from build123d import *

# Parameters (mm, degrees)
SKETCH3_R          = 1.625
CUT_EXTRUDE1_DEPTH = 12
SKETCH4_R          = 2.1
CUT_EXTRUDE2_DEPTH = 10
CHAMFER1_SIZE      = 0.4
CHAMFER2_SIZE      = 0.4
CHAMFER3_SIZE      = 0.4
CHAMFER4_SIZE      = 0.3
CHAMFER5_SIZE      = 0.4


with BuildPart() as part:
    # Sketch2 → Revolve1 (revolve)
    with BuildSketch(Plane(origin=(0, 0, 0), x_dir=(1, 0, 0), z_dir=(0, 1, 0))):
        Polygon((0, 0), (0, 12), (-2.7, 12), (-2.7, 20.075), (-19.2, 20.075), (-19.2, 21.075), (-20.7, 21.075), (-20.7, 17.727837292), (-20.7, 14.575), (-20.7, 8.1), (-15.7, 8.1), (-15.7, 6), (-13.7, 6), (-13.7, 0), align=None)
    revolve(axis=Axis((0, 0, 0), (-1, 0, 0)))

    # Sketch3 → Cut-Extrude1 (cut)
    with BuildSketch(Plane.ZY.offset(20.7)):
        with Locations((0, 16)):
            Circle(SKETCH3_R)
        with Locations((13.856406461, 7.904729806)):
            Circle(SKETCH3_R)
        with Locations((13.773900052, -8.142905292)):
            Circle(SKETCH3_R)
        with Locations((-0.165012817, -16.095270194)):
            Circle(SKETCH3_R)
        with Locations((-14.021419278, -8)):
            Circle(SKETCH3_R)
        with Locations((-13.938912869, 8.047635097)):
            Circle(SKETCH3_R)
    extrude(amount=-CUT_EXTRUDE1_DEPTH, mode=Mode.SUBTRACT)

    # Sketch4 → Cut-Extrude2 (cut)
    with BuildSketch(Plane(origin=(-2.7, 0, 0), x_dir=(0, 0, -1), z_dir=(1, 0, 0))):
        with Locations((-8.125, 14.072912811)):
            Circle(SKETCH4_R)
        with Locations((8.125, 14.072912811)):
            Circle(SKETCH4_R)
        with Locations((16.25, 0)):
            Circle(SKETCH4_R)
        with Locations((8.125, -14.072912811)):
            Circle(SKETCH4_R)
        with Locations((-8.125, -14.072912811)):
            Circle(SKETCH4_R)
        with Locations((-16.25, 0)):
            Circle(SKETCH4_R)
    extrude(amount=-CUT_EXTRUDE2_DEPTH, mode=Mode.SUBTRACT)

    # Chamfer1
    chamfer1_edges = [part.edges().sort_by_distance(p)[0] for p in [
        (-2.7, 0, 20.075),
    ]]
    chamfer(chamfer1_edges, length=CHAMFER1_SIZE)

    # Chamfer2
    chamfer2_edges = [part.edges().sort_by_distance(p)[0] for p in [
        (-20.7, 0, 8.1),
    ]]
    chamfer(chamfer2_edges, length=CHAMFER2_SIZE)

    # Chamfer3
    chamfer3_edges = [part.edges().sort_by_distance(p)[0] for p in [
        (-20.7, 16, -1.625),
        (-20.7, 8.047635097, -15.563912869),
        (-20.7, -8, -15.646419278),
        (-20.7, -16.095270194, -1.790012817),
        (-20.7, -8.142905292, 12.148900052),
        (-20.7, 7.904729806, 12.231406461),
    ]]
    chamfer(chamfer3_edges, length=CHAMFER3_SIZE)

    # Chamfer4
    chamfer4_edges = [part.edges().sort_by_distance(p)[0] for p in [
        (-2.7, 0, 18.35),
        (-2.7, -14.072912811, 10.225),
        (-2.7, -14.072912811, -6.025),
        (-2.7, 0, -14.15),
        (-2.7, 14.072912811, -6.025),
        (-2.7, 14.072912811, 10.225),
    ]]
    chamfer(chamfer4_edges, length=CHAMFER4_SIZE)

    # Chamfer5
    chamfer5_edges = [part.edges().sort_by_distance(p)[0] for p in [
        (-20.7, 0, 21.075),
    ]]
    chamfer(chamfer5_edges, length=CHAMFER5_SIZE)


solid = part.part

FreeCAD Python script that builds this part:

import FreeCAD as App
import Part
import Sketcher

V = App.Vector
Q = App.Units.Quantity


def edges_at(feature, points):
    """Names of the edges that pass closest to the given points."""
    edges = feature.Shape.Edges
    near = lambda p: min(range(len(edges)), key=lambda i: edges[i].distToShape(Part.Vertex(*p))[0])
    return sorted({f"Edge{near(p) + 1}" for p in points})


def add_polygon(sketch, points):
    """Adds a closed chain of lines whose ends are joined by coincident constraints."""
    first, n = sketch.GeometryCount, len(points)
    for a, b in zip(points, points[1:] + points[:1]):
        sketch.addGeometry(Part.LineSegment(App.Vector(*a, 0), App.Vector(*b, 0)), False)
    for i in range(n):
        sketch.addConstraint(Sketcher.Constraint("Coincident", first + i, 2, first + (i + 1) % n, 1))

doc = App.newDocument("Part")
body = doc.addObject("PartDesign::Body", "Body")

# Sketch on XZ plane
sketch1 = doc.addObject("Sketcher::SketchObject", "Sketch")
body.addObject(sketch1)
sketch1.AttachmentSupport = (doc.XZ_Plane, [""])
sketch1.MapMode = "FlatFace"
add_polygon(sketch1, [(0, 0), (0, -12), (-2.7, -12), (-2.7, -20.1), (-19.2, -20.1), (-19.2, -21.1), (-20.7, -21.1), (-20.7, -8.1), (-15.7, -8.1), (-15.7, -6), (-13.7, -6), (-13.7, 0)])  # lines 0-11
sketch1.addConstraint([
    Sketcher.Constraint("Vertical", 0),
    Sketcher.Constraint("Horizontal", 1),
    Sketcher.Constraint("Vertical", 2),
    Sketcher.Constraint("Horizontal", 3),
    Sketcher.Constraint("Vertical", 4),
    Sketcher.Constraint("Horizontal", 5),
    Sketcher.Constraint("Vertical", 6),
    Sketcher.Constraint("Horizontal", 7),
    Sketcher.Constraint("Vertical", 8),
    Sketcher.Constraint("Horizontal", 9),
    Sketcher.Constraint("Vertical", 10),
    Sketcher.Constraint("Horizontal", 11),
    Sketcher.Constraint("Coincident", 11, 2, -1, 1),
    Sketcher.Constraint("DistanceX", 7, 1, 7, 2, Q("5 mm")),
    Sketcher.Constraint("DistanceX", 9, 1, 9, 2, Q("2 mm")),
    Sketcher.Constraint("DistanceY", 0, 2, 0, 1, Q("12 mm")),
    Sketcher.Constraint("DistanceY", 4, 2, 4, 1, Q("1 mm")),
    Sketcher.Constraint("DistanceY", 10, 1, 10, 2, Q("6 mm")),
    Sketcher.Constraint("DistanceX", 1, 2, 1, 1, Q("2.7 mm")),
    Sketcher.Constraint("DistanceX", 3, 2, 3, 1, Q("16.5 mm")),
    Sketcher.Constraint("DistanceX", 5, 2, 5, 1, Q("1.5 mm")),
    Sketcher.Constraint("DistanceY", 8, 1, 8, 2, Q("2.1 mm")),
    Sketcher.Constraint("DistanceY", 2, 2, 2, 1, Q("8.075 mm")),
])
revolution = doc.addObject("PartDesign::Revolution", "Revolution")
body.addObject(revolution)
revolution.Profile = sketch1
revolution.ReferenceAxis = (sketch1, ["H_Axis"])
revolution.Angle = 360

# Sketch on YZ plane
sketch2 = doc.addObject("Sketcher::SketchObject", "Sketch001")
body.addObject(sketch2)
sketch2.AttachmentSupport = (doc.YZ_Plane, [""])
sketch2.MapMode = "FlatFace"
sketch2.AttachmentOffset = App.Placement(V(0, 0, -20.7), App.Rotation())
sketch2.addGeometry([
    Part.Circle(V(16, 0, 0), V(0, 0, 1), 1.6),  # 0
    Part.Circle(V(7.9, 13.9, 0), V(0, 0, 1), 1.6),  # 1
    Part.Circle(V(-8.1, 13.8, 0), V(0, 0, 1), 1.6),  # 2
    Part.Circle(V(-16.1, -0.2, 0), V(0, 0, 1), 1.6),  # 3
    Part.Circle(V(-8, -14, 0), V(0, 0, 1), 1.6),  # 4
    Part.Circle(V(8, -13.9, 0), V(0, 0, 1), 1.6),  # 5
], False)
sketch2.addConstraint([
    Sketcher.Constraint("Equal", 0, 1),
    Sketcher.Constraint("Equal", 1, 2),
    Sketcher.Constraint("Equal", 2, 3),
    Sketcher.Constraint("Equal", 3, 4),
    Sketcher.Constraint("Equal", 4, 5),
    Sketcher.Constraint("PointOnObject", 0, 3, -1),
    Sketcher.Constraint("Diameter", 0, Q("3.25 mm")),
    Sketcher.Constraint("DistanceX", -1, 1, 0, 3, Q("16 mm")),
    Sketcher.Constraint("DistanceX", 4, 3, -1, 1, Q("8 mm")),
    Sketcher.Constraint("DistanceX", 3, 3, 1, 3, Q("24 mm")),
    Sketcher.Constraint("DistanceY", -1, 1, 2, 3, Q("13.7739 mm")),
    Sketcher.Constraint("DistanceY", 5, 3, 3, 3, Q("13.7739 mm")),
    Sketcher.Constraint("DistanceX", -1, 1, 1, 3, Q("7.90473 mm")),
    Sketcher.Constraint("DistanceY", 4, 3, -1, 1, Q("14.021419 mm")),
    Sketcher.Constraint("DistanceY", 3, 3, 1, 3, Q("14.021419 mm")),
    Sketcher.Constraint("DistanceX", 2, 3, 5, 3, Q("16.19054 mm")),
    Sketcher.Constraint("DistanceY", -1, 1, 1, 3, Q("13.856406 mm")),
    Sketcher.Constraint("DistanceX", 2, 3, -1, 1, Q("8.142905 mm")),
])
pocket1 = doc.addObject("PartDesign::Pocket", "Pocket")
body.addObject(pocket1)
pocket1.Profile = sketch2
pocket1.Length = 12
pocket1.Reversed = True

# Sketch on YZ plane
sketch3 = doc.addObject("Sketcher::SketchObject", "Sketch002")
body.addObject(sketch3)
sketch3.AttachmentSupport = (doc.YZ_Plane, [""])
sketch3.MapMode = "FlatFace"
sketch3.AttachmentOffset = App.Placement(V(0, 0, -2.7), App.Rotation())
sketch3.addGeometry([
    Part.Circle(V(14.1, 8.1, 0), V(0, 0, 1), 2.1),  # 0
    Part.Circle(V(14.1, -8.1, 0), V(0, 0, 1), 2.1),  # 1
    Part.Circle(V(0, -16.2, 0), V(0, 0, 1), 2.1),  # 2
    Part.Circle(V(-14.1, -8.1, 0), V(0, 0, 1), 2.1),  # 3
    Part.Circle(V(-14.1, 8.1, 0), V(0, 0, 1), 2.1),  # 4
    Part.Circle(V(0, 16.2, 0), V(0, 0, 1), 2.1),  # 5
], False)
sketch3.addConstraint([
    Sketcher.Constraint("Equal", 0, 1),
    Sketcher.Constraint("Equal", 1, 2),
    Sketcher.Constraint("Equal", 2, 3),
    Sketcher.Constraint("Equal", 3, 4),
    Sketcher.Constraint("Equal", 4, 5),
    Sketcher.Constraint("Symmetric", 0, 3, 3, 3, -1, 1),
    Sketcher.Constraint("Symmetric", 1, 3, 4, 3, -1, 1),
    Sketcher.Constraint("Symmetric", 2, 3, 5, 3, -1, 1),
    Sketcher.Constraint("Symmetric", 1, 3, 3, 3, -2),
    Sketcher.Constraint("PointOnObject", 2, 3, -2),
    Sketcher.Constraint("Diameter", 0, Q("4.2 mm")),
    Sketcher.Constraint("DistanceY", 2, 3, 5, 3, Q("32.5 mm")),
    Sketcher.Constraint("DistanceY", 1, 3, 0, 3, Q("16.25 mm")),
    Sketcher.Constraint("DistanceX", -1, 1, 0, 3, Q("14.072913 mm")),
])
pocket2 = doc.addObject("PartDesign::Pocket", "Pocket001")
body.addObject(pocket2)
pocket2.Profile = sketch3
pocket2.Length = 10
doc.recompute()

chamfer = doc.addObject("PartDesign::Chamfer", "Chamfer")
body.addObject(chamfer)
chamfer.Base = (pocket2, edges_at(pocket2, [(-2.7, 0, 20.075)]))
chamfer.Size = 0.4
doc.recompute()

chamfer2 = doc.addObject("PartDesign::Chamfer", "Chamfer001")
body.addObject(chamfer2)
chamfer2.Base = (chamfer, edges_at(chamfer, [(-20.7, 0, 8.1)]))
chamfer2.Size = 0.4
doc.recompute()

chamfer3 = doc.addObject("PartDesign::Chamfer", "Chamfer002")
body.addObject(chamfer3)
chamfer3.Base = (chamfer2, edges_at(chamfer2, [
    (-20.7, 16, -1.625),
    (-20.7, 8.048, -15.564),
    (-20.7, -8, -15.646),
    (-20.7, -16.095, -1.79),
    (-20.7, -8.143, 12.149),
    (-20.7, 7.905, 12.231),
]))
chamfer3.Size = 0.4
doc.recompute()

chamfer4 = doc.addObject("PartDesign::Chamfer", "Chamfer003")
body.addObject(chamfer4)
chamfer4.Base = (chamfer3, edges_at(chamfer3, [
    (-2.7, 0, 18.35),
    (-2.7, -14.073, 10.225),
    (-2.7, -14.073, -6.025),
    (-2.7, 0, -14.15),
    (-2.7, 14.073, -6.025),
    (-2.7, 14.073, 10.225),
]))
chamfer4.Size = 0.3
doc.recompute()

chamfer5 = doc.addObject("PartDesign::Chamfer", "Chamfer004")
body.addObject(chamfer5)
chamfer5.Base = (chamfer4, edges_at(chamfer4, [(-20.7, 0, 21.075)]))
chamfer5.Size = 0.4

doc.recompute()
